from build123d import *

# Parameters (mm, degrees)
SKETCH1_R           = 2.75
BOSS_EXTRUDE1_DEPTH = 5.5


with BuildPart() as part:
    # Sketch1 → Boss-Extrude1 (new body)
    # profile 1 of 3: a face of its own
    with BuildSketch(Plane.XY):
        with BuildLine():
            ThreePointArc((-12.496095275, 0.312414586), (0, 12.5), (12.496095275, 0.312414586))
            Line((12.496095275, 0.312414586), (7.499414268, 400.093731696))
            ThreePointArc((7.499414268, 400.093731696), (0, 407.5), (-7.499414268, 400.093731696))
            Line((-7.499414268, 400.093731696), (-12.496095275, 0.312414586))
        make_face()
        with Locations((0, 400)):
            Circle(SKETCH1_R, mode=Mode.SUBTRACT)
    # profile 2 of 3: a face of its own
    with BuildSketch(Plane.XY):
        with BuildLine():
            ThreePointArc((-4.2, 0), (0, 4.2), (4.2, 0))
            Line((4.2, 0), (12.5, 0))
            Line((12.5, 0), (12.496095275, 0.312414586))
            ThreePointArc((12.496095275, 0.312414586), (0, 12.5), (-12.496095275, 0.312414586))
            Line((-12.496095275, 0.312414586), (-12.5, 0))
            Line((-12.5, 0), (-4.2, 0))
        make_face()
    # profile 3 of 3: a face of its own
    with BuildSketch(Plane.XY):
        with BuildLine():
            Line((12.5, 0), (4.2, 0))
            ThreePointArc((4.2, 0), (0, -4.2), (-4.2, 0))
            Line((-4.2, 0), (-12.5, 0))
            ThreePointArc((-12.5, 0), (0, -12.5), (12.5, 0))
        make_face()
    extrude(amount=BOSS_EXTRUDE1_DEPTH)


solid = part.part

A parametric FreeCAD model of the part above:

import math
import FreeCAD as App
import Part
import Sketcher

V = App.Vector
Q = App.Units.Quantity

doc = App.newDocument("Part")
body = doc.addObject("PartDesign::Body", "Body")

# Sketch on XY plane
sketch1 = body.newObject("Sketcher::SketchObject", "Sketch")
sketch1.AttachmentSupport = (doc.getObject("XY_Plane"), [""])
sketch1.MapMode = "FlatFace"
sketch1.addGeometry([
    Part.LineSegment(V(-7.5, 400.09, 0), V(-12.5, 0.31, 0)),  # 0
    Part.LineSegment(V(-12.5, 0.31, 0), V(-12.5, 0, 0)),  # 1
    Part.ArcOfCircle(Part.Circle(V(0, 0, 0), V(0, 0, 1), 12.5), math.radians(180), math.radians(360)),  # 2
    Part.LineSegment(V(12.5, 0, 0), V(12.5, 0.31, 0)),  # 3
    Part.LineSegment(V(12.5, 0.31, 0), V(7.5, 400.09, 0)),  # 4
    Part.ArcOfCircle(Part.Circle(V(0, 400, 0), V(0, 0, 1), 7.5), math.radians(1), math.radians(179)),  # 5
    Part.Circle(V(0, 400, 0), V(0, 0, 1), 2.75),  # 6
    Part.Circle(V(0, 0, 0), V(0, 0, 1), 4.2),  # 7
], False)
sketch1.addConstraint([
    Sketcher.Constraint("Coincident", 0, 2, 1, 1),
    Sketcher.Constraint("Coincident", 1, 2, 2, 1),
    Sketcher.Constraint("Coincident", 2, 2, 3, 1),
    Sketcher.Constraint("Coincident", 3, 2, 4, 1),
    Sketcher.Constraint("Tangent", 4, 2, 5, 1),
    Sketcher.Constraint("Tangent", 5, 2, 0, 1),
    Sketcher.Constraint("Coincident", 2, 3, -1, 1),
    Sketcher.Constraint("Coincident", 7, 3, -1, 1),
    Sketcher.Constraint("Coincident", 6, 3, 5, 3),
    Sketcher.Constraint("Symmetric", 0, 2, 3, 2, -2),
    Sketcher.Constraint("PointOnObject", 5, 3, -2),
    Sketcher.Constraint("PointOnObject", 1, 2, -1),
    Sketcher.Constraint("PointOnObject", 2, 2, -1),
    Sketcher.Constraint("Parallel", 0, 1),
    Sketcher.Constraint("Diameter", 6, Q("5.5 mm")),
    Sketcher.Constraint("Diameter", 7, Q("8.4 mm")),
    Sketcher.Constraint("Radius", 2, Q("12.5 mm")),
    Sketcher.Constraint("Radius", 5, Q("7.5 mm")),
    Sketcher.Constraint("DistanceY", -1, 1, 5, 3, Q("400 mm")),
    Sketcher.Constraint("Distance", 0, Q("399.812541 mm")),
])
pad1 = body.newObject("PartDesign::Pad", "Pad")
pad1.Profile = sketch1
pad1.Length = 5.5

doc.recompute()
